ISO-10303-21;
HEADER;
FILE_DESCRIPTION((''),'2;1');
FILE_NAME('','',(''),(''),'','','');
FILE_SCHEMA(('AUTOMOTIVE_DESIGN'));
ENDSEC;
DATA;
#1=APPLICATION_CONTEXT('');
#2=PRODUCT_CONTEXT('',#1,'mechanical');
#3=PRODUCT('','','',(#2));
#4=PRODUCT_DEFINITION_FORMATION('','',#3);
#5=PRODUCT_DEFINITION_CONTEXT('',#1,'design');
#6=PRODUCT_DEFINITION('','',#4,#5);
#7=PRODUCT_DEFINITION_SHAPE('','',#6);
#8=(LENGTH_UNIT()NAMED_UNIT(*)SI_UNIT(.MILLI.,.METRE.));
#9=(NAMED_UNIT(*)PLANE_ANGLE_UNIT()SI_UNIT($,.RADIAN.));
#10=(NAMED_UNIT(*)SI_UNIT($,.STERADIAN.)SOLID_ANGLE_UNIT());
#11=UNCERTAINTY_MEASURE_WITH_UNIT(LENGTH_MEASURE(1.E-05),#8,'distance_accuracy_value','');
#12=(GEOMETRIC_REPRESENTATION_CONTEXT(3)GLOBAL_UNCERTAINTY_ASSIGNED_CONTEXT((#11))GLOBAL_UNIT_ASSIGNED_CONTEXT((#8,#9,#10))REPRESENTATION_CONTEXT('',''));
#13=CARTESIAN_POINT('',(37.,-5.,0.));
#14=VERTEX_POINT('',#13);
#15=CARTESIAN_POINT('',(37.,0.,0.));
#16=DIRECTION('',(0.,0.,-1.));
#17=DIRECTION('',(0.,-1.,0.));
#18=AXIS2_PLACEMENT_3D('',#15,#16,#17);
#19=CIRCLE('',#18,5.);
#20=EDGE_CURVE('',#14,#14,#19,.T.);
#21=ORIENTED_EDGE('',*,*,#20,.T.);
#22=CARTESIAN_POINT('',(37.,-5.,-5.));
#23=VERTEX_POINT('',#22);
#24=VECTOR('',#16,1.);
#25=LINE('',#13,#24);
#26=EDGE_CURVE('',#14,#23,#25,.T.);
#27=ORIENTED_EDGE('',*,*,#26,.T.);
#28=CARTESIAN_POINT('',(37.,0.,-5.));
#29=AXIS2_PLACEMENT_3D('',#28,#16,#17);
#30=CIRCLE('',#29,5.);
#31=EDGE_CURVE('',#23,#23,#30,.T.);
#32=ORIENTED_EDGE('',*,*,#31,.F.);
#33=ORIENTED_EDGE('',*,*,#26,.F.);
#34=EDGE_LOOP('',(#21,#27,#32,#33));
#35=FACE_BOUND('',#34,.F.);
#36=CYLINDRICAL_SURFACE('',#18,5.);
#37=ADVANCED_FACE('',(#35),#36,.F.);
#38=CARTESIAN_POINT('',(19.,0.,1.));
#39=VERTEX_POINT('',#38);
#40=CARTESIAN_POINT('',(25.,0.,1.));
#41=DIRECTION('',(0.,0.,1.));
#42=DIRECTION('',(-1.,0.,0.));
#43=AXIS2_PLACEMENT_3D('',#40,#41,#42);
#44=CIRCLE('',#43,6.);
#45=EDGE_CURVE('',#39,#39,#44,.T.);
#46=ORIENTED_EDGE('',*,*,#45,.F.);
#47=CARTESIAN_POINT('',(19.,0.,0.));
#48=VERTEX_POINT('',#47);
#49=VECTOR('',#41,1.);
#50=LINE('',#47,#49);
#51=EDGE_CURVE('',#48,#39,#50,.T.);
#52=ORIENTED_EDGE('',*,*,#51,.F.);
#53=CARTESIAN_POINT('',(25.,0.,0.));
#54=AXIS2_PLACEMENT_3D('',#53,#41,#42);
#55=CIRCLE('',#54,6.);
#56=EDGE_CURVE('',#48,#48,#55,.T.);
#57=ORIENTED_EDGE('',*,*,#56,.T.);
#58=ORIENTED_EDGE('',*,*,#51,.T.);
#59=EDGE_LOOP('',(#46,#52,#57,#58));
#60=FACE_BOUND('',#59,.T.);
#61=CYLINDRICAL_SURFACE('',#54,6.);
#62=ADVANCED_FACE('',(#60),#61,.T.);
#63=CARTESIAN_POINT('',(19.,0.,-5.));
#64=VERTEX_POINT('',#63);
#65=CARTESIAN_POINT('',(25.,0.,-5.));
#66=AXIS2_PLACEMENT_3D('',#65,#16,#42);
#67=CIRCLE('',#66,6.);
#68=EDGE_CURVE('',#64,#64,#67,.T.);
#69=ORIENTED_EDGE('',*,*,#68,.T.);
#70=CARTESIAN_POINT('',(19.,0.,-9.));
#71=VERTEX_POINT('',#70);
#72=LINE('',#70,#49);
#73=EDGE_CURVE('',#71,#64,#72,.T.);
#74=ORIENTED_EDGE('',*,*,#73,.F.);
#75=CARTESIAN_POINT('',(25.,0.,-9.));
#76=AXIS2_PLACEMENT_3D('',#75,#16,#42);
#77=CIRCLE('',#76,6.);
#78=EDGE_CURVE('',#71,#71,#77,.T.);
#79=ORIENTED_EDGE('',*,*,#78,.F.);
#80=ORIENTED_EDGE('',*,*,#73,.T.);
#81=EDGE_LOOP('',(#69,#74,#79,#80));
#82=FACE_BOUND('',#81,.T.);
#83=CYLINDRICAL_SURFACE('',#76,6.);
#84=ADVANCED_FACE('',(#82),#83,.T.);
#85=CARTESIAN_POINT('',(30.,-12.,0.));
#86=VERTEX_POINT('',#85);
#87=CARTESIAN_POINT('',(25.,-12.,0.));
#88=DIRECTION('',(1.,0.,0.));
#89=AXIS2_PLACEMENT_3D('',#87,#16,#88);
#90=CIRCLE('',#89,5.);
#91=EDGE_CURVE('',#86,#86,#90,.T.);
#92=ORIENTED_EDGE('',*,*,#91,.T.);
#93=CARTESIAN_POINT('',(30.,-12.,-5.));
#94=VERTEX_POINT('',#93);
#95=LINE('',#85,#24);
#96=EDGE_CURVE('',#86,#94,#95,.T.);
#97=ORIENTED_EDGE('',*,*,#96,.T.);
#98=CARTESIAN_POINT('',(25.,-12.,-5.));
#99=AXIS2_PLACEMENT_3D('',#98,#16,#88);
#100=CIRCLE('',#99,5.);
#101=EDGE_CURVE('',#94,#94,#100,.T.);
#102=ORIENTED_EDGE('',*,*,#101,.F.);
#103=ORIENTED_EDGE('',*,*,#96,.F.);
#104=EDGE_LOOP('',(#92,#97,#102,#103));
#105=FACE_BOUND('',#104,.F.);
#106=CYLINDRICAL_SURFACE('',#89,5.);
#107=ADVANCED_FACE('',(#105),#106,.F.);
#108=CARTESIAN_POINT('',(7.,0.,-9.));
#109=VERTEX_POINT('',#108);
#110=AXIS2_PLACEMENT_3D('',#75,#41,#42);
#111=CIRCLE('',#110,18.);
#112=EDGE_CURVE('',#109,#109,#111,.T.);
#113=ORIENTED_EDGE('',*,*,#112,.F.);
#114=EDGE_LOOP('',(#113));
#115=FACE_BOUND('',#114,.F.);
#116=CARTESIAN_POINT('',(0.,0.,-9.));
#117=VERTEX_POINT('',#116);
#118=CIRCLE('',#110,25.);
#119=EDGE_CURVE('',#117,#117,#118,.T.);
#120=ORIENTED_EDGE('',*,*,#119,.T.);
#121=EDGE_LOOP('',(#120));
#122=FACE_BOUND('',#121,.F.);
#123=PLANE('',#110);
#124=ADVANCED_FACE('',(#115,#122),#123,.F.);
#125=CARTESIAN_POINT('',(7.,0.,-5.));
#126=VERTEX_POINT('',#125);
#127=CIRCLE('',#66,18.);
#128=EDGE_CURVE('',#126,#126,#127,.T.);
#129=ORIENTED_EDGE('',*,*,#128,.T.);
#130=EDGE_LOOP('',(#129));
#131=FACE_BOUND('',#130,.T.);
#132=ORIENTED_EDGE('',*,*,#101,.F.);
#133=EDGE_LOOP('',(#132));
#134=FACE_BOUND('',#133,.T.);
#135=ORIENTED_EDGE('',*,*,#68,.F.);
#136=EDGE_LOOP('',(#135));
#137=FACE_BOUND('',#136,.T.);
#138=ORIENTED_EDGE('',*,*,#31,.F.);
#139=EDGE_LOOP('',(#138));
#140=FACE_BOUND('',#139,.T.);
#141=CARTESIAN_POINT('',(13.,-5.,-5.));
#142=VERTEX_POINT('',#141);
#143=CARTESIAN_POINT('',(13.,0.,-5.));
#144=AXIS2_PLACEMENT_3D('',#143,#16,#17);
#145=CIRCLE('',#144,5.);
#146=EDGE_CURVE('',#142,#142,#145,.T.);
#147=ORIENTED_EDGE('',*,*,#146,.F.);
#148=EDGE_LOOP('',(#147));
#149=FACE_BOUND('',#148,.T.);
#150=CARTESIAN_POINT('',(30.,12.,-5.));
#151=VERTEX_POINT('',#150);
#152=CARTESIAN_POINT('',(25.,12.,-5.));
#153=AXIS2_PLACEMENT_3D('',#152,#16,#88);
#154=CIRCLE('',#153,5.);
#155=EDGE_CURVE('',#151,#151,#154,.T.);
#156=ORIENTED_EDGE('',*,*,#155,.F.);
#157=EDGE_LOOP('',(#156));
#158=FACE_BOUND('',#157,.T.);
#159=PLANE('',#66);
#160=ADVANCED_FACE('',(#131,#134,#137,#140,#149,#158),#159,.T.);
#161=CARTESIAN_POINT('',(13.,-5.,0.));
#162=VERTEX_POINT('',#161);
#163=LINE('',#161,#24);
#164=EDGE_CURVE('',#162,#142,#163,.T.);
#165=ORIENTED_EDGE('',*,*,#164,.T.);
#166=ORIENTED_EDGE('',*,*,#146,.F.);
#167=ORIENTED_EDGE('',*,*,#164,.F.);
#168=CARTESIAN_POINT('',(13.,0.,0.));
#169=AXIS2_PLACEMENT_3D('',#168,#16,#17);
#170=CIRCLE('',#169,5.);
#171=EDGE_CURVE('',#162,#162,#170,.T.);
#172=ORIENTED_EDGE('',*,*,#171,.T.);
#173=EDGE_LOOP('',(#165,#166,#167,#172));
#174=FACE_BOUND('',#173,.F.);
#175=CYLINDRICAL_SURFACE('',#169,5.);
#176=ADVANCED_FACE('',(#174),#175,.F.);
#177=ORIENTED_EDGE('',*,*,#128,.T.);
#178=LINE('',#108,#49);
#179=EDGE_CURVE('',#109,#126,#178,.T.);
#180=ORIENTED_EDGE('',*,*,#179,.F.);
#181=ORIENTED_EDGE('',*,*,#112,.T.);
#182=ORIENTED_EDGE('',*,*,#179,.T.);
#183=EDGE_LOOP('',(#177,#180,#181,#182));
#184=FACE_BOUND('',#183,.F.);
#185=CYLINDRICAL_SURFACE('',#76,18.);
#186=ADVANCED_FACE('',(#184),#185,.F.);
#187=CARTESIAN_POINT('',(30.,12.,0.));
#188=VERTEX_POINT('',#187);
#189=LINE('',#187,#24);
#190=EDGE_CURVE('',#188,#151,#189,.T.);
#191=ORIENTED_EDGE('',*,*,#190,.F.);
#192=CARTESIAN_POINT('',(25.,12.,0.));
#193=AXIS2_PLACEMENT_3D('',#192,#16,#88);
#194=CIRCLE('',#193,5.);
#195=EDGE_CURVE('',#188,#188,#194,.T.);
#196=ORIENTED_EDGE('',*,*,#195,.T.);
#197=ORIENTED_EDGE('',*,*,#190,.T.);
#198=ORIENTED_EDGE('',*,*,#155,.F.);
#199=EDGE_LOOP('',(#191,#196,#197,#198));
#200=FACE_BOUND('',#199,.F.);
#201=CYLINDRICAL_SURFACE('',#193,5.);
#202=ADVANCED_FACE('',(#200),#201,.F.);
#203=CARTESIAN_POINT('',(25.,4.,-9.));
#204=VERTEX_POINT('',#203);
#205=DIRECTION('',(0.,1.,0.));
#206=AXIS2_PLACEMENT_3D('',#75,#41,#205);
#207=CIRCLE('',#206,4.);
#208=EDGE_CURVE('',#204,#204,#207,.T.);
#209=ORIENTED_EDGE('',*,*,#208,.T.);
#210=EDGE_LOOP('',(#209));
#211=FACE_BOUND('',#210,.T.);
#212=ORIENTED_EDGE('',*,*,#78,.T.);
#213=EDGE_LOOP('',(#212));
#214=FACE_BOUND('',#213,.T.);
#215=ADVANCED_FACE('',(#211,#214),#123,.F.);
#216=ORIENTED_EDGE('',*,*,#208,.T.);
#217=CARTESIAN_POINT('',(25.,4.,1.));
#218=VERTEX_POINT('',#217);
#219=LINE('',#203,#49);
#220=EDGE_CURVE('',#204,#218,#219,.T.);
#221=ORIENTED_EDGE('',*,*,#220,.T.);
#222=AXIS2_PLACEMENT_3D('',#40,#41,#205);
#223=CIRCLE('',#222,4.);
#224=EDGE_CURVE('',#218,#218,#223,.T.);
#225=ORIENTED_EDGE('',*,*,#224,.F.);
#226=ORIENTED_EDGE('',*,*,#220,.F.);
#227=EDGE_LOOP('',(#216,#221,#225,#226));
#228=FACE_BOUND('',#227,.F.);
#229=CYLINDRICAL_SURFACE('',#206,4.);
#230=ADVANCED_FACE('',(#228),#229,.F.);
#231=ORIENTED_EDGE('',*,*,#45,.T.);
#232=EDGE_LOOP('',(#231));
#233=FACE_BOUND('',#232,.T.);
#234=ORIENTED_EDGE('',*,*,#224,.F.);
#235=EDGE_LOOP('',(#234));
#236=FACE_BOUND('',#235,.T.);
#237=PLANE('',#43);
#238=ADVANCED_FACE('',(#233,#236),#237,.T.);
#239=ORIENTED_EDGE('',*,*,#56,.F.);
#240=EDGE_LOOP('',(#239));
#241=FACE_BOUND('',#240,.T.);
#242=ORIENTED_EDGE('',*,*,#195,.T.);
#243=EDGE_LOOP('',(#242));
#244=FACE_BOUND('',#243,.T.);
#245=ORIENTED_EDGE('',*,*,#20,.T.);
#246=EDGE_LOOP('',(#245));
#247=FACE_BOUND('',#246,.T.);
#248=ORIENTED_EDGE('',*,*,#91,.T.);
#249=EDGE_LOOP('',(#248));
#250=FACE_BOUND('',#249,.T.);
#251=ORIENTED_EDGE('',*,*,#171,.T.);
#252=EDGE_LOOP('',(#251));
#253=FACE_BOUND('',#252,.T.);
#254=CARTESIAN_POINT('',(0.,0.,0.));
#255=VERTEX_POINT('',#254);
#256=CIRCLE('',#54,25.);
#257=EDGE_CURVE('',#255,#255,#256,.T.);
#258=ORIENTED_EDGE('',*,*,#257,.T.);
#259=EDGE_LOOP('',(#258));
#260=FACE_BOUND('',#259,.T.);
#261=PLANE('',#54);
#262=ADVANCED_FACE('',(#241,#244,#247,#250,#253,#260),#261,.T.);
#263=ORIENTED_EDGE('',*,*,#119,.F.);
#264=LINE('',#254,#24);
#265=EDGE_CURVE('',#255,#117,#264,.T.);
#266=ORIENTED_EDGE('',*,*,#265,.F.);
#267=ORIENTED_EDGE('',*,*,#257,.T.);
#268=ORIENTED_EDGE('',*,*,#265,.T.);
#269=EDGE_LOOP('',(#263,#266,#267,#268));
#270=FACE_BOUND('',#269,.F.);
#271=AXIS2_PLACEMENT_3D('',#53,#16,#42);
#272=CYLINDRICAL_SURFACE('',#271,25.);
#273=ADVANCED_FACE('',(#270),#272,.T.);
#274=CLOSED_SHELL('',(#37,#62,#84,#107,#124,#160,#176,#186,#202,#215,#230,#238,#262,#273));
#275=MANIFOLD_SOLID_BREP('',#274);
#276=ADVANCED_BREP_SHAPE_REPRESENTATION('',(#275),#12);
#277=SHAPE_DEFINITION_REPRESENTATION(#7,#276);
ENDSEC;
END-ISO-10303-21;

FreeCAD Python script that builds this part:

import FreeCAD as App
import Part
import Sketcher
from FreeCAD import Vector
Q = App.Units.Quantity


def add_polygon(sketch, points):
    """Adds a closed chain of lines whose ends are joined by coincident constraints."""
    first, n = sketch.GeometryCount, len(points)
    for a, b in zip(points, points[1:] + points[:1]):
        sketch.addGeometry(Part.LineSegment(App.Vector(*a, 0), App.Vector(*b, 0)), False)
    for i in range(n):
        sketch.addConstraint(Sketcher.Constraint("Coincident", first + i, 2, first + (i + 1) % n, 1))

doc = App.newDocument("Part")
body = doc.addObject("PartDesign::Body", "Body")

sketch1 = body.newObject("Sketcher::SketchObject", "Sketch")
sketch1.AttachmentSupport = (doc.getObject("XZ_Plane"), [""])
sketch1.MapMode = "FlatFace"
add_polygon(sketch1, [(25, 1), (25, -9), (0, -9), (0, 0), (19, 0), (19, 1)])
sketch1.addGeometry(Part.LineSegment(Vector(25, -9, 0), Vector(25, 1, 0)), True)
sketch1.addConstraint([
    Sketcher.Constraint("Vertical", 0),
    Sketcher.Constraint("Horizontal", 1),
    Sketcher.Constraint("Vertical", 2),
    Sketcher.Constraint("Horizontal", 3),
    Sketcher.Constraint("Vertical", 4),
    Sketcher.Constraint("Horizontal", 5),
    Sketcher.Constraint("Vertical", 6),
    Sketcher.Constraint("Coincident", 2, 2, -1, 1),
    Sketcher.Constraint("Coincident", 6, 1, 0, 2),
    Sketcher.Constraint("Horizontal", 4, 2, 6, 2),
    Sketcher.Constraint("DistanceY", 0, 2, 0, 1, Q("10 mm")),
    Sketcher.Constraint("DistanceY", 4, 1, 4, 2, Q("1 mm")),
    Sketcher.Constraint("DistanceX", 1, 2, 1, 1, Q("25 mm")),
    Sketcher.Constraint("DistanceX", 3, 1, 3, 2, Q("19 mm")),
])
revolution = body.newObject("PartDesign::Revolution", "Revolution")
revolution.Profile = sketch1
revolution.ReferenceAxis = (sketch1, ["Axis0"])
revolution.Angle = 360

sketch2 = body.newObject("Sketcher::SketchObject", "Sketch001")
sketch2.AttachmentSupport = (doc.getObject("XY_Plane"), [""])
sketch2.MapMode = "FlatFace"
sketch2.AttachmentOffset = App.Placement(Vector(0, 0, -9), App.Rotation())
sketch2.addGeometry([
    Part.Circle(Vector(25, 0, 0), Vector(0, 0, 1), 18),
    Part.Circle(Vector(25, 0, 0), Vector(0, 0, 1), 6),
], False)
sketch2.addConstraint([
    Sketcher.Constraint("Coincident", 1, 3, 0, 3),
    Sketcher.Constraint("PointOnObject", 0, 3, -1),
    Sketcher.Constraint("Diameter", 0, Q("36 mm")),
    Sketcher.Constraint("Diameter", 1, Q("12 mm")),
    Sketcher.Constraint("DistanceX", -1, 1, 0, 3, Q("25 mm")),
])
pocket1 = body.newObject("PartDesign::Pocket", "Pocket")
pocket1.Profile = sketch2
pocket1.Length = 4
pocket1.Reversed = True

sketch3 = body.newObject("Sketcher::SketchObject", "Sketch002")
sketch3.AttachmentSupport = (doc.getObject("XY_Plane"), [""])
sketch3.MapMode = "FlatFace"
sketch3.AttachmentOffset = App.Placement(Vector(0, 0, -9), App.Rotation())
sketch3.addGeometry(Part.Circle(Vector(25, 0, 0), Vector(0, 0, 1), 4), False)
sketch3.addConstraint([
    Sketcher.Constraint("PointOnObject", 0, 3, -1),
    Sketcher.Constraint("Diameter", 0, Q("8 mm")),
    Sketcher.Constraint("DistanceX", -1, 1, 0, 3, Q("25 mm")),
])
doc.recompute()
hole = body.newObject("PartDesign::Hole", "Hole")
hole.Profile = sketch3
hole.ThreadType = "None"
hole.Diameter = 8
hole.DepthType = "ThroughAll"
hole.Reversed = True

sketch4 = body.newObject("Sketcher::SketchObject", "Sketch003")
sketch4.AttachmentSupport = (doc.getObject("XY_Plane"), [""])
sketch4.MapMode = "FlatFace"
sketch4.addGeometry([
    Part.Circle(Vector(13, 0, 0), Vector(0, 0, 1), 5),
    Part.Circle(Vector(37, 0, 0), Vector(0, 0, 1), 5),
], False)
sketch4.addConstraint([
    Sketcher.Constraint("Equal", 0, 1),
    Sketcher.Constraint("PointOnObject", 0, 3, -1),
    Sketcher.Constraint("PointOnObject", 1, 3, -1),
    Sketcher.Constraint("Diameter", 0, Q("10 mm")),
    Sketcher.Constraint("DistanceX", -1, 1, 0, 3, Q("13 mm")),
    Sketcher.Constraint("DistanceX", -1, 1, 1, 3, Q("37 mm")),
])
doc.recompute()
hole2 = body.newObject("PartDesign::Hole", "Hole001")
hole2.Profile = sketch4
hole2.ThreadType = "None"
hole2.Diameter = 10
hole2.DepthType = "ThroughAll"
doc.recompute()

datumline = body.newObject("PartDesign::Line", "DatumLine")
datumline.Placement = App.Placement(Vector(25, 0, 0), App.Rotation(Vector(0, 0, 1), Vector(0, 0, 1)))
polarpattern = body.newObject("PartDesign::PolarPattern", "PolarPattern")
polarpattern.Originals = [hole2]
polarpattern.Axis = (datumline, [""])
polarpattern.Angle = 360
polarpattern.Occurrences = 4
body.Tip = polarpattern

doc.recompute()
